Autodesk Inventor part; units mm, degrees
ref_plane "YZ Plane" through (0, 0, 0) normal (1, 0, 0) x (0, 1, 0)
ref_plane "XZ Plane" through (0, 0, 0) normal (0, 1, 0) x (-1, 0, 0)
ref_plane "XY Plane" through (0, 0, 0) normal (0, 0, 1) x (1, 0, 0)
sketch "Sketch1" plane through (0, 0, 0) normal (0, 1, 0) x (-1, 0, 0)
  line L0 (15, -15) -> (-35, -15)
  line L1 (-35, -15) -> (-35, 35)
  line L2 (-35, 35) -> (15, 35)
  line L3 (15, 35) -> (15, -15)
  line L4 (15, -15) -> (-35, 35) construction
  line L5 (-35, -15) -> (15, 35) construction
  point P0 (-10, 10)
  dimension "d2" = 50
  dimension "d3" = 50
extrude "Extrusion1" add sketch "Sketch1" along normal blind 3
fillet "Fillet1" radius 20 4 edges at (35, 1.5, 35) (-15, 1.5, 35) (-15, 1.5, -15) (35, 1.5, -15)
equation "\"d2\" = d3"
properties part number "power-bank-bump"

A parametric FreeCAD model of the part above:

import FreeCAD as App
import Part
import Sketcher
from FreeCAD import Vector


def edges_at(feature, points):
    """Names of the edges that pass closest to the given points."""
    edges = feature.Shape.Edges
    near = lambda p: min(range(len(edges)), key=lambda i: edges[i].distToShape(Part.Vertex(*p))[0])
    return sorted({f"Edge{near(p) + 1}" for p in points})

doc = App.newDocument("Part")
body = doc.addObject("PartDesign::Body", "Body")

# Sketch on XZ plane
sketch1 = body.newObject("Sketcher::SketchObject", "Sketch")
sketch1.AttachmentSupport = (doc.getObject("XZ_Plane"), [""])
sketch1.MapMode = "FlatFace"
sketch1.addGeometry([
    Part.LineSegment(Vector(35, -15, 0), Vector(-15, -15, 0)),
    Part.LineSegment(Vector(-15, -15, 0), Vector(-15, 35, 0)),
    Part.LineSegment(Vector(-15, 35, 0), Vector(35, 35, 0)),
    Part.LineSegment(Vector(35, 35, 0), Vector(35, -15, 0)),
], False)
sketch1.addConstraint([
    Sketcher.Constraint("Coincident", 0, 2, 1, 1),
    Sketcher.Constraint("Coincident", 1, 2, 2, 1),
    Sketcher.Constraint("Coincident", 2, 2, 3, 1),
    Sketcher.Constraint("Coincident", 3, 2, 0, 1),
    Sketcher.Constraint("Horizontal", 0),
    Sketcher.Constraint("Vertical", 1),
    Sketcher.Constraint("Horizontal", 2),
    Sketcher.Constraint("Vertical", 3),
    Sketcher.Constraint("Equal", 2, 1),
    Sketcher.Constraint("DistanceX", 0, 2, 0, 1, 50.0),
    Sketcher.Constraint("DistanceX", 0, 2, -1, 1, 15.0),
    Sketcher.Constraint("DistanceY", 0, 2, -1, 1, 15.0),
])
pad1 = body.newObject("PartDesign::Pad", "Pad")
pad1.Profile = sketch1
pad1.Length = 3
pad1.Reversed = True
doc.recompute()

fillet = body.newObject("PartDesign::Fillet", "Fillet")
fillet.Base = (pad1, edges_at(pad1, [
    (35, 1.5, 35),
    (-15, 1.5, 35),
    (-15, 1.5, -15),
    (35, 1.5, -15),
]))
fillet.Radius = 20

doc.recompute()
